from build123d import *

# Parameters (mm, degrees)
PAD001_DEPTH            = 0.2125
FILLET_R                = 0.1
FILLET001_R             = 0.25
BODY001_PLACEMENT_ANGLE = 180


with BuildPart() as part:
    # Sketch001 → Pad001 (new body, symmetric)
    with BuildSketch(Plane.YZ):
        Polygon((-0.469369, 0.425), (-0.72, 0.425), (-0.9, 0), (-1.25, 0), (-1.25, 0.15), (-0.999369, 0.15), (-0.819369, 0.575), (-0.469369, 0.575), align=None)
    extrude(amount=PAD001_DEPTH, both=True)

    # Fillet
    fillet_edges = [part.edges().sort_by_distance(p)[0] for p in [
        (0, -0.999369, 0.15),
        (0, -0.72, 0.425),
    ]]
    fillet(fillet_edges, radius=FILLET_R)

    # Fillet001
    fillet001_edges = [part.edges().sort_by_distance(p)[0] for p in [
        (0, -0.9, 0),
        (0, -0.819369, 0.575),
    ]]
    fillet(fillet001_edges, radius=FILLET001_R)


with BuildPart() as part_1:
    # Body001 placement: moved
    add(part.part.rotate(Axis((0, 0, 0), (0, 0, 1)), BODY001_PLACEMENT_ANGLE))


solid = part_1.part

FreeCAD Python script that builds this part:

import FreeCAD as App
import Part
import Sketcher


def edges_at(feature, points):
    """Names of the edges that pass closest to the given points."""
    edges = feature.Shape.Edges
    near = lambda p: min(range(len(edges)), key=lambda i: edges[i].distToShape(Part.Vertex(*p))[0])
    return sorted({f"Edge{near(p) + 1}" for p in points})

doc = App.newDocument("Part")
body = doc.addObject("PartDesign::Body", "Body")

sketch1 = body.newObject("Sketcher::SketchObject", "Sketch")
sketch1.AttachmentSupport = (doc.getObject("YZ_Plane"), [""])
sketch1.MapMode = "FlatFace"
sketch1.addGeometry(Part.LineSegment(App.Vector(-0.72, 0.42, 0), App.Vector(-0.47, 0.42, 0)), False)
sketch1.addGeometry(Part.LineSegment(App.Vector(-0.47, 0.42, 0), App.Vector(-0.47, 0.57, 0)), False)
sketch1.addGeometry(Part.LineSegment(App.Vector(-0.47, 0.57, 0), App.Vector(-0.82, 0.57, 0)), False)
sketch1.addGeometry(Part.LineSegment(App.Vector(-0.82, 0.57, 0), App.Vector(-1, 0.15, 0)), False)
sketch1.addGeometry(Part.LineSegment(App.Vector(-1, 0.15, 0), App.Vector(-1.25, 0.15, 0)), False)
sketch1.addGeometry(Part.LineSegment(App.Vector(-1.25, 0.15, 0), App.Vector(-1.25, 0, 0)), False)
sketch1.addGeometry(Part.LineSegment(App.Vector(-1.25, 0, 0), App.Vector(-0.9, 0, 0)), False)
sketch1.addGeometry(Part.LineSegment(App.Vector(-0.9, 0, 0), App.Vector(-0.72, 0.42, 0)), False)
sketch1.addConstraint(Sketcher.Constraint("Coincident", 0, 2, 1, 1))
sketch1.addConstraint(Sketcher.Constraint("Coincident", 1, 2, 2, 1))
sketch1.addConstraint(Sketcher.Constraint("Coincident", 2, 2, 3, 1))
sketch1.addConstraint(Sketcher.Constraint("Coincident", 3, 2, 4, 1))
sketch1.addConstraint(Sketcher.Constraint("Coincident", 4, 2, 5, 1))
sketch1.addConstraint(Sketcher.Constraint("Coincident", 5, 2, 6, 1))
sketch1.addConstraint(Sketcher.Constraint("Coincident", 6, 2, 7, 1))
sketch1.addConstraint(Sketcher.Constraint("Coincident", 7, 2, 0, 1))
sketch1.addConstraint(Sketcher.Constraint("Horizontal", 0))
sketch1.addConstraint(Sketcher.Constraint("Vertical", 1))
sketch1.addConstraint(Sketcher.Constraint("Horizontal", 2))
sketch1.addConstraint(Sketcher.Constraint("Horizontal", 4))
sketch1.addConstraint(Sketcher.Constraint("Vertical", 5))
sketch1.addConstraint(Sketcher.Constraint("Horizontal", 6))
sketch1.addConstraint(Sketcher.Constraint("PointOnObject", 5, 2, -1))
sketch1.addConstraint(Sketcher.Constraint("Parallel", 3, 7))
sketch1.addConstraint(Sketcher.Constraint("Equal", 0, 4))
sketch1.addConstraint(Sketcher.Constraint("Equal", 2, 6))
sketch1.addConstraint(Sketcher.Constraint("DistanceX", 2, 2, 2, 1, 0.35))
sketch1.addConstraint(Sketcher.Constraint("DistanceY", 1, 1, 1, 2, 0.15))
sketch1.addConstraint(Sketcher.Constraint("DistanceX", 6, 2, -1, 1, 0.9))
sketch1.addConstraint(Sketcher.Constraint("DistanceX", 7, 2, -1, 1, 0.72))
sketch1.addConstraint(Sketcher.Constraint("DistanceY", -1, 1, 0, 2, 0.425))
sketch1.addConstraint(Sketcher.Constraint("DistanceX", 0, 1, 0, 2, 0.250631))
pad1 = body.newObject("PartDesign::Pad", "Pad")
pad1.Profile = sketch1
pad1.Length = 0.425
pad1.Midplane = True
doc.recompute()

fillet = body.newObject("PartDesign::Fillet", "Fillet")
fillet.Base = (pad1, edges_at(pad1, [(0, -0.999, 0.15), (0, -0.72, 0.425)]))
fillet.Radius = 0.1
doc.recompute()

fillet2 = body.newObject("PartDesign::Fillet", "Fillet001")
fillet2.Base = (fillet, edges_at(fillet, [(0, -0.9, 0), (0, -0.819, 0.575)]))
fillet2.Radius = 0.25
body2 = doc.addObject("PartDesign::Body", "Body001")
doc.recompute()

body.Placement = App.Placement(App.Vector(0, 0, 0), App.Rotation(App.Vector(0, 0, 1), 180))
boolean = body2.newObject("PartDesign::Boolean", "Boolean")
boolean.Type = "Fuse"
boolean.addObjects([body])

doc.recompute()
